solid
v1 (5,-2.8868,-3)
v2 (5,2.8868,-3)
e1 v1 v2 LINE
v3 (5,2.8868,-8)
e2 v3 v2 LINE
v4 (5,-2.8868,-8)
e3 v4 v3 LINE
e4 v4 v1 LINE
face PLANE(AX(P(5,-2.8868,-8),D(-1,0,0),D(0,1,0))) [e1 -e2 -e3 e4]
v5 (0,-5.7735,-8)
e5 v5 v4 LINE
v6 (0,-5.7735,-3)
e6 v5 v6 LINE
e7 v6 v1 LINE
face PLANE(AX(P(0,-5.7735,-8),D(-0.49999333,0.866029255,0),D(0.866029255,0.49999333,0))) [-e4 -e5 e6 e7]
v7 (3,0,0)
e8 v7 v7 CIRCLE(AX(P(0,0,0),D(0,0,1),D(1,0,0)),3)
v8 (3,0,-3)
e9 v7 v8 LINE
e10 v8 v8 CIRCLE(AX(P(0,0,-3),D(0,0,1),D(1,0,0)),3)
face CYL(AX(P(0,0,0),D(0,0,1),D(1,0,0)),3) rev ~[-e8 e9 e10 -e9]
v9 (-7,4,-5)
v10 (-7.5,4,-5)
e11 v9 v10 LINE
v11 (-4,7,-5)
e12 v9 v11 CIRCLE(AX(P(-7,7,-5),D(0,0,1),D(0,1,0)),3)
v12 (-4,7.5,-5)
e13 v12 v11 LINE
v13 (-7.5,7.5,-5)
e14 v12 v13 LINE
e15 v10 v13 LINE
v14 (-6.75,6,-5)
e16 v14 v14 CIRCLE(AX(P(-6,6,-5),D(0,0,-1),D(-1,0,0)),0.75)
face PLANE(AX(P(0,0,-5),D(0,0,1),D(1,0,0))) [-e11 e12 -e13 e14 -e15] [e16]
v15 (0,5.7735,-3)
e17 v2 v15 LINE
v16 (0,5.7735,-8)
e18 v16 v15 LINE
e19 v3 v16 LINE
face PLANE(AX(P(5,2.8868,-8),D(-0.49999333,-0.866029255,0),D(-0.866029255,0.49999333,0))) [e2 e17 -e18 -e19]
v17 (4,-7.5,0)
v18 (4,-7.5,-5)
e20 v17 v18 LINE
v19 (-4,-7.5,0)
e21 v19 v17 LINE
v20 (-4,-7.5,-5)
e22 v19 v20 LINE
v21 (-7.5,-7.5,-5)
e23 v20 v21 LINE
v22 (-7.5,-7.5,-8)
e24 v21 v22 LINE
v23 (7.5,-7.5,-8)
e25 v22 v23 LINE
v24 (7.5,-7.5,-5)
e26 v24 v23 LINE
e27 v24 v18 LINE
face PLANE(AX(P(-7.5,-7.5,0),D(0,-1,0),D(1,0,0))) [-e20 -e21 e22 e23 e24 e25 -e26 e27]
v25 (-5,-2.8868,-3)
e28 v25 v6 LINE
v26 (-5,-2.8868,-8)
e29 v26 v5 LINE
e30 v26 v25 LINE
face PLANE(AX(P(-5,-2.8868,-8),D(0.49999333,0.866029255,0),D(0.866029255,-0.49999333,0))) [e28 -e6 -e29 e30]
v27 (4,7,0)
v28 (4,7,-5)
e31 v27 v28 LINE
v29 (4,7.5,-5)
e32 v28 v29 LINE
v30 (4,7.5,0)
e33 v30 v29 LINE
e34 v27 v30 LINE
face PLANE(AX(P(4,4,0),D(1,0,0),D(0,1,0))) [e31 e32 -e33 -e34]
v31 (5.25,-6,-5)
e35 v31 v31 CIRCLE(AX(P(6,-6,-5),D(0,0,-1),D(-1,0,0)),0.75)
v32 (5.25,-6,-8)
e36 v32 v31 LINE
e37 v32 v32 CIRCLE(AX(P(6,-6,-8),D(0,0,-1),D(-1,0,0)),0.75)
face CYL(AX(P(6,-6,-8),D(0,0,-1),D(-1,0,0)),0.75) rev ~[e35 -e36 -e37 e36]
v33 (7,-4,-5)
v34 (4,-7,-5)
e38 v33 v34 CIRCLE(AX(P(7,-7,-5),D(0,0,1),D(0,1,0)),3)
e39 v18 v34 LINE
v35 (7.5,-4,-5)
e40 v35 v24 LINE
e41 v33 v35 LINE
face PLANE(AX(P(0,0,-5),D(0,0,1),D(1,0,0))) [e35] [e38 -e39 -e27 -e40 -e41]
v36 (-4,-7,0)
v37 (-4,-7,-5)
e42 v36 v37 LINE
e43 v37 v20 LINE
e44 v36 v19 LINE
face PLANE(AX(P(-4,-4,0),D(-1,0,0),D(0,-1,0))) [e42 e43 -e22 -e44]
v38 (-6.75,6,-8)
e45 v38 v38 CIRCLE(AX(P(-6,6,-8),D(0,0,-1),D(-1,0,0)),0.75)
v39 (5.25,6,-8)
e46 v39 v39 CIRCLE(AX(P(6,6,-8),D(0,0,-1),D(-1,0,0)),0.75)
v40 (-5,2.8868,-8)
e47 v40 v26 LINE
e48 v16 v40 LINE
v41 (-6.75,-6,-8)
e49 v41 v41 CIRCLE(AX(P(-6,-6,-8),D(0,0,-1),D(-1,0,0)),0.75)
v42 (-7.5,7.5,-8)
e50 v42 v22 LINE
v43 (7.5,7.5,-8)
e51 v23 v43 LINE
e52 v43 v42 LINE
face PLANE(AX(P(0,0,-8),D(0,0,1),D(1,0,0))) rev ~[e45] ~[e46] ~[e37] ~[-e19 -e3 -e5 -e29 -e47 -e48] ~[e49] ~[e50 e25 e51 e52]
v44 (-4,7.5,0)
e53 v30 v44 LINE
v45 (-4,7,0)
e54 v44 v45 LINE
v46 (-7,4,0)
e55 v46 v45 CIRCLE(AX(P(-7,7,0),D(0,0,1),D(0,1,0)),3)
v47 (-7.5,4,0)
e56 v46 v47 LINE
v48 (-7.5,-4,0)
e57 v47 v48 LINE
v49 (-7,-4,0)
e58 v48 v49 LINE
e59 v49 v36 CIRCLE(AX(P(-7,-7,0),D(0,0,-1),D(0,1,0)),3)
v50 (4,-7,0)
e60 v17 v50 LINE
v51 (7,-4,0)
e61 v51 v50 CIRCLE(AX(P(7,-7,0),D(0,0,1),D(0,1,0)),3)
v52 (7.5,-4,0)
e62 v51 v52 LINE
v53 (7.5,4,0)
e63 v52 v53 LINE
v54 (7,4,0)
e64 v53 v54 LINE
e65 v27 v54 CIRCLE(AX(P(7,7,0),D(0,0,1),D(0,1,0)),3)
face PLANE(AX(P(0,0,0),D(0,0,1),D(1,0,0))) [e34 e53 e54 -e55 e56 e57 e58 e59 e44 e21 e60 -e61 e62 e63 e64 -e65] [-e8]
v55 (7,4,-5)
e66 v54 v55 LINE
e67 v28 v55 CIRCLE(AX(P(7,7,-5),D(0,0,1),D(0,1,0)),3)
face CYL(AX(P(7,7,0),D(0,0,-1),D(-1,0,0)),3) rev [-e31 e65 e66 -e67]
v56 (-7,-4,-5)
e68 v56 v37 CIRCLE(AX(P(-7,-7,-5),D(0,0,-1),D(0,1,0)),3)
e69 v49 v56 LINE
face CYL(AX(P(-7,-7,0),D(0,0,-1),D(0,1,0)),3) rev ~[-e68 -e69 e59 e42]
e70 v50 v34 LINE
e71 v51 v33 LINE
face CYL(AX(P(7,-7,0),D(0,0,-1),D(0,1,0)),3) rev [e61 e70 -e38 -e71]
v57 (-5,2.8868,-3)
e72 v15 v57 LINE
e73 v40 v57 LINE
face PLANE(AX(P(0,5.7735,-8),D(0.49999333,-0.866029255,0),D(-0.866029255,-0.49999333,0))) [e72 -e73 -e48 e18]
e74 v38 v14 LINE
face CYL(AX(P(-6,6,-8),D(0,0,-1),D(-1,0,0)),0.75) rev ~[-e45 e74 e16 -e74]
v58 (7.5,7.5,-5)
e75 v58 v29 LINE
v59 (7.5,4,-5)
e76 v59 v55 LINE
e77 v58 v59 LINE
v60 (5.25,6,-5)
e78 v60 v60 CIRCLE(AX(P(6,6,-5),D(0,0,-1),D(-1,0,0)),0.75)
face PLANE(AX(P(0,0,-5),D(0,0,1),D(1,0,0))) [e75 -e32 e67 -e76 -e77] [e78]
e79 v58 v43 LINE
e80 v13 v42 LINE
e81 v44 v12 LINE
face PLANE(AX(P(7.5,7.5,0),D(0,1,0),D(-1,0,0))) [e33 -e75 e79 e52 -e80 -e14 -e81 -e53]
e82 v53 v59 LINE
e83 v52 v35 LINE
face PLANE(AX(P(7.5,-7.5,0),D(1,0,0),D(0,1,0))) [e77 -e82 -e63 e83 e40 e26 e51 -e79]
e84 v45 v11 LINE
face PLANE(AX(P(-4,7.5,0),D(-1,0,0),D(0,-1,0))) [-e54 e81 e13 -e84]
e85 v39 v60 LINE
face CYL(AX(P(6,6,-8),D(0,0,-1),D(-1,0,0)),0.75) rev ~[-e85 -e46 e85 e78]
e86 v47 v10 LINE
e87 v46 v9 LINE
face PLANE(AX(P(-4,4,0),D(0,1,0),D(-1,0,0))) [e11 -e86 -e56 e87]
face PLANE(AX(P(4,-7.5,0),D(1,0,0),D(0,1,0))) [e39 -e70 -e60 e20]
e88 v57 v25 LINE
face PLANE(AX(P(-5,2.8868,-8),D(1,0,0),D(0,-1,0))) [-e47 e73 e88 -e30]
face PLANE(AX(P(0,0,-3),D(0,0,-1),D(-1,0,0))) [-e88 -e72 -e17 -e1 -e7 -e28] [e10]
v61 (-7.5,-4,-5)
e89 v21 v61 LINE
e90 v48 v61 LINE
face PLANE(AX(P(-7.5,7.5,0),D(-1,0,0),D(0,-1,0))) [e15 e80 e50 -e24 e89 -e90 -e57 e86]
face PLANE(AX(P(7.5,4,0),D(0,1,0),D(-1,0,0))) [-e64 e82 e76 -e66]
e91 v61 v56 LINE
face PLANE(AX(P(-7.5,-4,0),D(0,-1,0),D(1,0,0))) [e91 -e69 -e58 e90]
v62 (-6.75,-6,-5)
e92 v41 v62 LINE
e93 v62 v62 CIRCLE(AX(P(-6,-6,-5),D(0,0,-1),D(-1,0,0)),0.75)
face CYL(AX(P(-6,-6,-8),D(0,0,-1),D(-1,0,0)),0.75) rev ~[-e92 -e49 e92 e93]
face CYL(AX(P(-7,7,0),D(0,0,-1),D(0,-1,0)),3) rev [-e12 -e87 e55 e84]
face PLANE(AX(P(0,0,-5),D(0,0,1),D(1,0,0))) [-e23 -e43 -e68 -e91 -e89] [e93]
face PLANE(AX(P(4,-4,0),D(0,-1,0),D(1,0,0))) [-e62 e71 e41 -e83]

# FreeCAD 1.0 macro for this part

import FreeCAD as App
import Part
import Sketcher
Q = App.Units.Quantity


def edges_at(feature, points):
    """Names of the edges that pass closest to the given points."""
    edges = feature.Shape.Edges
    near = lambda p: min(range(len(edges)), key=lambda i: edges[i].distToShape(Part.Vertex(*p))[0])
    return sorted({f"Edge{near(p) + 1}" for p in points})

doc = App.newDocument("Part")
body = doc.addObject("PartDesign::Body", "Body")

# Sketch on XY plane
sketch1 = body.newObject("Sketcher::SketchObject", "Sketch")
sketch1.AttachmentSupport = (doc.getObject("XY_Plane"), [""])
sketch1.MapMode = "FlatFace"
sketch1.addGeometry([
    Part.LineSegment(App.Vector(-7.5, 7.5, 0), App.Vector(-7.5, -7.5, 0)),
    Part.LineSegment(App.Vector(-7.5, -7.5, 0), App.Vector(7.5, -7.5, 0)),
    Part.LineSegment(App.Vector(7.5, -7.5, 0), App.Vector(7.5, 7.5, 0)),
    Part.LineSegment(App.Vector(7.5, 7.5, 0), App.Vector(-7.5, 7.5, 0)),
], False)
sketch1.addConstraint([
    Sketcher.Constraint("Coincident", 0, 2, 1, 1),
    Sketcher.Constraint("Coincident", 1, 2, 2, 1),
    Sketcher.Constraint("Coincident", 2, 2, 3, 1),
    Sketcher.Constraint("Coincident", 3, 2, 0, 1),
    Sketcher.Constraint("Vertical", 0),
    Sketcher.Constraint("Horizontal", 1),
    Sketcher.Constraint("Vertical", 2),
    Sketcher.Constraint("Horizontal", 3),
    Sketcher.Constraint("Symmetric", 0, 2, 2, 2, -1, 1),
    Sketcher.Constraint("Equal", 3, 0),
    Sketcher.Constraint("DistanceX", 1, 1, 1, 2, Q("15 mm")),
])
pad1 = body.newObject("PartDesign::Pad", "Pad")
pad1.Profile = sketch1
pad1.Length = 8
pad1.Reversed = True

# Sketch on XY plane
sketch2 = body.newObject("Sketcher::SketchObject", "Sketch001")
sketch2.AttachmentSupport = (doc.getObject("XY_Plane"), [""])
sketch2.MapMode = "FlatFace"
sketch2.AttachmentOffset = App.Placement(App.Vector(0, 0, -8), App.Rotation())
sketch2.addGeometry([
    Part.Circle(App.Vector(6, 6, 0), App.Vector(0, 0, 1), 0.75),
    Part.Circle(App.Vector(-6, 6, 0), App.Vector(0, 0, 1), 0.75),
    Part.Circle(App.Vector(-6, -6, 0), App.Vector(0, 0, 1), 0.75),
    Part.Circle(App.Vector(6, -6, 0), App.Vector(0, 0, 1), 0.75),
], False)
sketch2.addConstraint([
    Sketcher.Constraint("Equal", 0, 1),
    Sketcher.Constraint("Equal", 1, 2),
    Sketcher.Constraint("Equal", 2, 3),
    Sketcher.Constraint("Symmetric", 0, 3, 2, 3, -1, 1),
    Sketcher.Constraint("Symmetric", 1, 3, 3, 3, -1, 1),
    Sketcher.Constraint("Symmetric", 0, 3, 1, 3, -2),
    Sketcher.Constraint("Diameter", 0, Q("1.5 mm")),
    Sketcher.Constraint("DistanceX", 1, 3, 0, 3, Q("12 mm")),
    Sketcher.Constraint("DistanceY", 2, 3, 1, 3, Q("12 mm")),
])
pocket1 = body.newObject("PartDesign::Pocket", "Pocket")
pocket1.Profile = sketch2
pocket1.Length = 8
pocket1.Reversed = True

# Sketch on XY plane
sketch3 = body.newObject("Sketcher::SketchObject", "Sketch002")
sketch3.AttachmentSupport = (doc.getObject("XY_Plane"), [""])
sketch3.MapMode = "FlatFace"
sketch3.addGeometry([
    Part.LineSegment(App.Vector(7.5, 4, 0), App.Vector(7.5, 7.5, 0)),  # 0
    Part.LineSegment(App.Vector(7.5, 7.5, 0), App.Vector(4, 7.5, 0)),  # 1
    Part.LineSegment(App.Vector(4, 7.5, 0), App.Vector(4, 4, 0)),  # 2
    Part.LineSegment(App.Vector(4, 4, 0), App.Vector(7.5, 4, 0)),  # 3
    Part.LineSegment(App.Vector(-4, 4, 0), App.Vector(-4, 7.5, 0)),  # 4
    Part.LineSegment(App.Vector(-4, 7.5, 0), App.Vector(-7.5, 7.5, 0)),  # 5
    Part.LineSegment(App.Vector(-7.5, 7.5, 0), App.Vector(-7.5, 4, 0)),  # 6
    Part.LineSegment(App.Vector(-7.5, 4, 0), App.Vector(-4, 4, 0)),  # 7
    Part.LineSegment(App.Vector(-7.5, -4, 0), App.Vector(-7.5, -7.5, 0)),  # 8
    Part.LineSegment(App.Vector(-7.5, -7.5, 0), App.Vector(-4, -7.5, 0)),  # 9
    Part.LineSegment(App.Vector(-4, -7.5, 0), App.Vector(-4, -4, 0)),  # 10
    Part.LineSegment(App.Vector(-4, -4, 0), App.Vector(-7.5, -4, 0)),  # 11
    Part.LineSegment(App.Vector(4, -7.5, 0), App.Vector(7.5, -7.5, 0)),  # 12
    Part.LineSegment(App.Vector(7.5, -7.5, 0), App.Vector(7.5, -4, 0)),  # 13
    Part.LineSegment(App.Vector(7.5, -4, 0), App.Vector(4, -4, 0)),  # 14
    Part.LineSegment(App.Vector(4, -4, 0), App.Vector(4, -7.5, 0)),  # 15
], False)
sketch3.addConstraint([
    Sketcher.Constraint("Coincident", 0, 2, 1, 1),
    Sketcher.Constraint("Coincident", 1, 2, 2, 1),
    Sketcher.Constraint("Coincident", 2, 2, 3, 1),
    Sketcher.Constraint("Coincident", 3, 2, 0, 1),
    Sketcher.Constraint("Coincident", 4, 2, 5, 1),
    Sketcher.Constraint("Coincident", 5, 2, 6, 1),
    Sketcher.Constraint("Coincident", 6, 2, 7, 1),
    Sketcher.Constraint("Coincident", 7, 2, 4, 1),
    Sketcher.Constraint("Coincident", 8, 2, 9, 1),
    Sketcher.Constraint("Coincident", 9, 2, 10, 1),
    Sketcher.Constraint("Coincident", 10, 2, 11, 1),
    Sketcher.Constraint("Coincident", 11, 2, 8, 1),
    Sketcher.Constraint("Coincident", 12, 2, 13, 1),
    Sketcher.Constraint("Coincident", 13, 2, 14, 1),
    Sketcher.Constraint("Coincident", 14, 2, 15, 1),
    Sketcher.Constraint("Coincident", 15, 2, 12, 1),
    Sketcher.Constraint("Vertical", 0),
    Sketcher.Constraint("Horizontal", 1),
    Sketcher.Constraint("Vertical", 2),
    Sketcher.Constraint("Horizontal", 3),
    Sketcher.Constraint("Vertical", 4),
    Sketcher.Constraint("Horizontal", 5),
    Sketcher.Constraint("Vertical", 6),
    Sketcher.Constraint("Horizontal", 7),
    Sketcher.Constraint("Vertical", 8),
    Sketcher.Constraint("Horizontal", 9),
    Sketcher.Constraint("Vertical", 10),
    Sketcher.Constraint("Horizontal", 11),
    Sketcher.Constraint("Horizontal", 12),
    Sketcher.Constraint("Vertical", 13),
    Sketcher.Constraint("Horizontal", 14),
    Sketcher.Constraint("Vertical", 15),
    Sketcher.Constraint("Symmetric", 0, 2, 8, 2, -1, 1),
    Sketcher.Constraint("Symmetric", 2, 2, 10, 2, -1, 1),
    Sketcher.Constraint("Symmetric", 5, 2, 12, 2, -1, 1),
    Sketcher.Constraint("Symmetric", 7, 2, 14, 2, -1, 1),
    Sketcher.Constraint("Symmetric", 1, 2, 4, 2, -2),
    Sketcher.Constraint("Symmetric", 3, 2, 6, 2, -2),
    Sketcher.Constraint("Equal", 14, 0),
    Sketcher.Constraint("DistanceX", 1, 2, 1, 1, Q("3.5 mm")),
    Sketcher.Constraint("DistanceX", -1, 1, 1, 2, Q("4 mm")),
    Sketcher.Constraint("DistanceY", -1, 1, 2, 2, Q("4 mm")),
])
pocket2 = body.newObject("PartDesign::Pocket", "Pocket001")
pocket2.Profile = sketch3
pocket2.Length = 5
doc.recompute()

fillet = body.newObject("PartDesign::Fillet", "Fillet")
fillet.Base = (pocket2, edges_at(pocket2, [
    (-4, 4, -2.5),
    (4, 4, -2.5),
    (4, -4, -2.5),
    (-4, -4, -2.5),
]))
fillet.Radius = 3

# Sketch on XY plane
sketch4 = body.newObject("Sketcher::SketchObject", "Sketch003")
sketch4.AttachmentSupport = (doc.getObject("XY_Plane"), [""])
sketch4.MapMode = "FlatFace"
sketch4.AttachmentOffset = App.Placement(App.Vector(0, 0, -8), App.Rotation())
sketch4.addGeometry([
    Part.LineSegment(App.Vector(-5, 2.8868, 0), App.Vector(0, 5.7735, 0)),  # 0
    Part.LineSegment(App.Vector(0, 5.7735, 0), App.Vector(5, 2.8868, 0)),  # 1
    Part.LineSegment(App.Vector(5, 2.8868, 0), App.Vector(5, -2.8868, 0)),  # 2
    Part.LineSegment(App.Vector(5, -2.8868, 0), App.Vector(0, -5.7735, 0)),  # 3
    Part.LineSegment(App.Vector(0, -5.7735, 0), App.Vector(-5, -2.8868, 0)),  # 4
    Part.LineSegment(App.Vector(-5, -2.8868, 0), App.Vector(-5, 2.8868, 0)),  # 5
], False)
sketch4.addConstraint([
    Sketcher.Constraint("Coincident", 0, 2, 1, 1),
    Sketcher.Constraint("Coincident", 1, 2, 2, 1),
    Sketcher.Constraint("Coincident", 2, 2, 3, 1),
    Sketcher.Constraint("Coincident", 3, 2, 4, 1),
    Sketcher.Constraint("Coincident", 4, 2, 5, 1),
    Sketcher.Constraint("Coincident", 5, 2, 0, 1),
    Sketcher.Constraint("Vertical", 2),
    Sketcher.Constraint("Vertical", 5),
    Sketcher.Constraint("Symmetric", 0, 2, 3, 2, -1, 1),
    Sketcher.Constraint("Symmetric", 1, 2, 4, 2, -1, 1),
    Sketcher.Constraint("PointOnObject", 0, 2, -2),
    Sketcher.Constraint("Parallel", 0, 3),
    Sketcher.Constraint("Horizontal", 2, 2, 4, 2),
    Sketcher.Constraint("DistanceX", 4, 2, 2, 2, Q("10 mm")),
    Sketcher.Constraint("Angle", 0, Q("29.9996 deg")),
    Sketcher.Constraint("DistanceY", 2, 2, 2, 1, Q("5.7736 mm")),
])
pocket3 = body.newObject("PartDesign::Pocket", "Pocket002")
pocket3.Profile = sketch4
pocket3.Length = 5
pocket3.Reversed = True

# Sketch on XY plane
sketch5 = body.newObject("Sketcher::SketchObject", "Sketch004")
sketch5.AttachmentSupport = (doc.getObject("XY_Plane"), [""])
sketch5.MapMode = "FlatFace"
sketch5.addGeometry(Part.Circle(App.Vector(0, 0, 0), App.Vector(0, 0, 1), 3), False)
sketch5.addConstraint([
    Sketcher.Constraint("Coincident", 0, 3, -1, 1),
    Sketcher.Constraint("Diameter", 0, Q("6 mm")),
])
pocket4 = body.newObject("PartDesign::Pocket", "Pocket003")
pocket4.Profile = sketch5
pocket4.Length = 8

doc.recompute()
